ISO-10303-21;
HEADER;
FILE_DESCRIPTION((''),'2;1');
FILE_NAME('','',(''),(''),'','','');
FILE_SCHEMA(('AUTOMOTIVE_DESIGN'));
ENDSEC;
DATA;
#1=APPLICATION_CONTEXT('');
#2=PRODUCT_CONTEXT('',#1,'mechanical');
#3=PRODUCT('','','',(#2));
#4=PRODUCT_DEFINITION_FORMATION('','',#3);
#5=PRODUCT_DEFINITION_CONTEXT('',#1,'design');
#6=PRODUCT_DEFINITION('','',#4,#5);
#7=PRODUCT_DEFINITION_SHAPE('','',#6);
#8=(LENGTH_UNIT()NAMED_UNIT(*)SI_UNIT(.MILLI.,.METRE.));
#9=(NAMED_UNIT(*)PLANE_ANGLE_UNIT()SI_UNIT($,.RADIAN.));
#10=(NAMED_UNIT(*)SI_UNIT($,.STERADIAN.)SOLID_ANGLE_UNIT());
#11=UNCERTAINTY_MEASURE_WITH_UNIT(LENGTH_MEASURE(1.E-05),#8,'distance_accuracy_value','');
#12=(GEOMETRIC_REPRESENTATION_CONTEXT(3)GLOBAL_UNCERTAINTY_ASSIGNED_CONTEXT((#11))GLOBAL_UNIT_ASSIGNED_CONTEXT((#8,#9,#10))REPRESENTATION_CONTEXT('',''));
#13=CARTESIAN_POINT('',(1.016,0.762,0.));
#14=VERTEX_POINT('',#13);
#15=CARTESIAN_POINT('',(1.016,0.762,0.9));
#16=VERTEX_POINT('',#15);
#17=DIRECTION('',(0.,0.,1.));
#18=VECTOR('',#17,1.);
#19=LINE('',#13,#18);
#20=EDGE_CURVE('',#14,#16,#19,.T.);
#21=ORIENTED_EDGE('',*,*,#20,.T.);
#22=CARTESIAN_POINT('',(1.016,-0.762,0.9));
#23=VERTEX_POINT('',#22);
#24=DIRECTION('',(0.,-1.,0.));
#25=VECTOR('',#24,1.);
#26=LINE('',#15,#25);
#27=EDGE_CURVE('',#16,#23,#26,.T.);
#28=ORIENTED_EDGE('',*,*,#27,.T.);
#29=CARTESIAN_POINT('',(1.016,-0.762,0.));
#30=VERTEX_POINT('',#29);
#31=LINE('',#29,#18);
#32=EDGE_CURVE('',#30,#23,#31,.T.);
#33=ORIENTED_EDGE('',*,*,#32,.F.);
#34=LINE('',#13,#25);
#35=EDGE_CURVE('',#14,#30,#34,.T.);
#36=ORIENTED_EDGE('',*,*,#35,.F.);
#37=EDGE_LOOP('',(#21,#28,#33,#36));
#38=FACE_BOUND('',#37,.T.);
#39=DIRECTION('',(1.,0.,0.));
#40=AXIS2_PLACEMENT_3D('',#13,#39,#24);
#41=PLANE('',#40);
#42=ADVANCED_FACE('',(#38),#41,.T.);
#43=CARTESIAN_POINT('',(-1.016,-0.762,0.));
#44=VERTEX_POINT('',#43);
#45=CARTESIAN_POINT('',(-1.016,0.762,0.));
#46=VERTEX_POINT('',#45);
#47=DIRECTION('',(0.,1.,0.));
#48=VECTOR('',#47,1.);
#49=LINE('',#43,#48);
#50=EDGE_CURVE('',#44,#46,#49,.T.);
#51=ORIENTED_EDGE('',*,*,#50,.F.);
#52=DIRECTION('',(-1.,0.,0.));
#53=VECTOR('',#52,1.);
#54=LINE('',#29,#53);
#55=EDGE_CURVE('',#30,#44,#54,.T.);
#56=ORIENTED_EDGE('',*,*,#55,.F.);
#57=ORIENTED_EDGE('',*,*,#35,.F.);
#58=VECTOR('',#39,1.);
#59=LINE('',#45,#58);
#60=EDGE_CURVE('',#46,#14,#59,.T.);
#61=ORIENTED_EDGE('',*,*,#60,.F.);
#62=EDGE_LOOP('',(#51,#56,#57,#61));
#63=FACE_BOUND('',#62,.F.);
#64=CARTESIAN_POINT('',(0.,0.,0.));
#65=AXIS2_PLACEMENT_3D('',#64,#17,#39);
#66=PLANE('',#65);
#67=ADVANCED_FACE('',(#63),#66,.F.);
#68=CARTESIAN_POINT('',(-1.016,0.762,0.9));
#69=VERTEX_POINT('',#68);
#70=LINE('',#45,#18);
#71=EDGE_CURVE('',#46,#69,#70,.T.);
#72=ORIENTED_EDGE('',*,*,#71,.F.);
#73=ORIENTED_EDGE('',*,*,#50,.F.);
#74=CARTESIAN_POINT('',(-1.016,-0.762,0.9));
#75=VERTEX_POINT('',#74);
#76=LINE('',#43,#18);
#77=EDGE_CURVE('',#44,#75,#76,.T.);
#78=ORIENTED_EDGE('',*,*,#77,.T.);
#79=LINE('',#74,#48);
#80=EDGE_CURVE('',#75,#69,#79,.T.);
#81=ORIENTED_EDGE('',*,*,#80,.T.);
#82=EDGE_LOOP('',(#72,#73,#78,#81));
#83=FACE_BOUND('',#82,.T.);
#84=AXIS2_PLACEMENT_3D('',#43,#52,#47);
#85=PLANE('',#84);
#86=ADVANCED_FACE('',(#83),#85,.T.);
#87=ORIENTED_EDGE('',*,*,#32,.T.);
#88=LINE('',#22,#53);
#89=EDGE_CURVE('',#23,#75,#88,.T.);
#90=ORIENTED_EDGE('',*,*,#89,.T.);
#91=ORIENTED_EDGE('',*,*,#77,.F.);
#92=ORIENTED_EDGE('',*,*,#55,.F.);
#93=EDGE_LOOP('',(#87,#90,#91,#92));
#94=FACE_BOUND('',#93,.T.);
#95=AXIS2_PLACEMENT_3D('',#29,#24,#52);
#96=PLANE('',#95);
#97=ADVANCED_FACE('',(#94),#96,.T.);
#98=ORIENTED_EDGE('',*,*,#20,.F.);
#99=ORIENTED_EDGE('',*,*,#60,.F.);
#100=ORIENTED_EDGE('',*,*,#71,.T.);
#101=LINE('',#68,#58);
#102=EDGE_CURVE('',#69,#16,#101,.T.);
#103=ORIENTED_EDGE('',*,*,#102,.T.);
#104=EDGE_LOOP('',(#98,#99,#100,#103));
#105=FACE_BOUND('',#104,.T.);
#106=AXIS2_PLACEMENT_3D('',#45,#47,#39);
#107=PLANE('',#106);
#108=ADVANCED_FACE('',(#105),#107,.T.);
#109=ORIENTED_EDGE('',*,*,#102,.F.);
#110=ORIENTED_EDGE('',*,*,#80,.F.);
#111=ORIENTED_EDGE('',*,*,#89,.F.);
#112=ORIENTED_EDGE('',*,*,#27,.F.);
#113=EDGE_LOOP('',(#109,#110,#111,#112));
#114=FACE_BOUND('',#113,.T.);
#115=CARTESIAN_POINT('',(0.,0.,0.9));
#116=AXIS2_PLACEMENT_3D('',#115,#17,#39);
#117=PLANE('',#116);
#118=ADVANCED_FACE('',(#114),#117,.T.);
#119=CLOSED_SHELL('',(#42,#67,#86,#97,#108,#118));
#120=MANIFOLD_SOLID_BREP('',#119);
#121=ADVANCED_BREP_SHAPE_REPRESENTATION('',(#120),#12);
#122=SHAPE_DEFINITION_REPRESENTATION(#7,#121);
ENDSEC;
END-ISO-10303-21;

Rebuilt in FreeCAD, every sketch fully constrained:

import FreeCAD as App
import Part
import Sketcher
from FreeCAD import Vector
Q = App.Units.Quantity

doc = App.newDocument("Part")
body = doc.addObject("PartDesign::Body", "Body")

sketch1 = doc.addObject("Sketcher::SketchObject", "Sketch")
body.addObject(sketch1)
sketch1.AttachmentSupport = (doc.XY_Plane, [""])
sketch1.MapMode = "FlatFace"
sketch1.addGeometry([
    Part.LineSegment(Vector(1, -0.8, 0), Vector(1, 0.8, 0)),
    Part.LineSegment(Vector(1, 0.8, 0), Vector(-1, 0.8, 0)),
    Part.LineSegment(Vector(-1, 0.8, 0), Vector(-1, -0.8, 0)),
    Part.LineSegment(Vector(-1, -0.8, 0), Vector(1, -0.8, 0)),
], False)
sketch1.addConstraint([
    Sketcher.Constraint("Coincident", 0, 2, 1, 1),
    Sketcher.Constraint("Coincident", 1, 2, 2, 1),
    Sketcher.Constraint("Coincident", 2, 2, 3, 1),
    Sketcher.Constraint("Coincident", 3, 2, 0, 1),
    Sketcher.Constraint("Vertical", 0),
    Sketcher.Constraint("Horizontal", 1),
    Sketcher.Constraint("Vertical", 2),
    Sketcher.Constraint("Horizontal", 3),
    Sketcher.Constraint("Symmetric", 0, 2, 2, 2, -1, 1),
    Sketcher.Constraint("DistanceX", 1, 2, 1, 1, Q("0.08 in")),
    Sketcher.Constraint("DistanceY", 0, 1, 0, 2, Q("0.06 in")),
])
pad1 = doc.addObject("PartDesign::Pad", "Pad")
body.addObject(pad1)
pad1.Profile = sketch1
pad1.Length = 0.9

doc.recompute()
